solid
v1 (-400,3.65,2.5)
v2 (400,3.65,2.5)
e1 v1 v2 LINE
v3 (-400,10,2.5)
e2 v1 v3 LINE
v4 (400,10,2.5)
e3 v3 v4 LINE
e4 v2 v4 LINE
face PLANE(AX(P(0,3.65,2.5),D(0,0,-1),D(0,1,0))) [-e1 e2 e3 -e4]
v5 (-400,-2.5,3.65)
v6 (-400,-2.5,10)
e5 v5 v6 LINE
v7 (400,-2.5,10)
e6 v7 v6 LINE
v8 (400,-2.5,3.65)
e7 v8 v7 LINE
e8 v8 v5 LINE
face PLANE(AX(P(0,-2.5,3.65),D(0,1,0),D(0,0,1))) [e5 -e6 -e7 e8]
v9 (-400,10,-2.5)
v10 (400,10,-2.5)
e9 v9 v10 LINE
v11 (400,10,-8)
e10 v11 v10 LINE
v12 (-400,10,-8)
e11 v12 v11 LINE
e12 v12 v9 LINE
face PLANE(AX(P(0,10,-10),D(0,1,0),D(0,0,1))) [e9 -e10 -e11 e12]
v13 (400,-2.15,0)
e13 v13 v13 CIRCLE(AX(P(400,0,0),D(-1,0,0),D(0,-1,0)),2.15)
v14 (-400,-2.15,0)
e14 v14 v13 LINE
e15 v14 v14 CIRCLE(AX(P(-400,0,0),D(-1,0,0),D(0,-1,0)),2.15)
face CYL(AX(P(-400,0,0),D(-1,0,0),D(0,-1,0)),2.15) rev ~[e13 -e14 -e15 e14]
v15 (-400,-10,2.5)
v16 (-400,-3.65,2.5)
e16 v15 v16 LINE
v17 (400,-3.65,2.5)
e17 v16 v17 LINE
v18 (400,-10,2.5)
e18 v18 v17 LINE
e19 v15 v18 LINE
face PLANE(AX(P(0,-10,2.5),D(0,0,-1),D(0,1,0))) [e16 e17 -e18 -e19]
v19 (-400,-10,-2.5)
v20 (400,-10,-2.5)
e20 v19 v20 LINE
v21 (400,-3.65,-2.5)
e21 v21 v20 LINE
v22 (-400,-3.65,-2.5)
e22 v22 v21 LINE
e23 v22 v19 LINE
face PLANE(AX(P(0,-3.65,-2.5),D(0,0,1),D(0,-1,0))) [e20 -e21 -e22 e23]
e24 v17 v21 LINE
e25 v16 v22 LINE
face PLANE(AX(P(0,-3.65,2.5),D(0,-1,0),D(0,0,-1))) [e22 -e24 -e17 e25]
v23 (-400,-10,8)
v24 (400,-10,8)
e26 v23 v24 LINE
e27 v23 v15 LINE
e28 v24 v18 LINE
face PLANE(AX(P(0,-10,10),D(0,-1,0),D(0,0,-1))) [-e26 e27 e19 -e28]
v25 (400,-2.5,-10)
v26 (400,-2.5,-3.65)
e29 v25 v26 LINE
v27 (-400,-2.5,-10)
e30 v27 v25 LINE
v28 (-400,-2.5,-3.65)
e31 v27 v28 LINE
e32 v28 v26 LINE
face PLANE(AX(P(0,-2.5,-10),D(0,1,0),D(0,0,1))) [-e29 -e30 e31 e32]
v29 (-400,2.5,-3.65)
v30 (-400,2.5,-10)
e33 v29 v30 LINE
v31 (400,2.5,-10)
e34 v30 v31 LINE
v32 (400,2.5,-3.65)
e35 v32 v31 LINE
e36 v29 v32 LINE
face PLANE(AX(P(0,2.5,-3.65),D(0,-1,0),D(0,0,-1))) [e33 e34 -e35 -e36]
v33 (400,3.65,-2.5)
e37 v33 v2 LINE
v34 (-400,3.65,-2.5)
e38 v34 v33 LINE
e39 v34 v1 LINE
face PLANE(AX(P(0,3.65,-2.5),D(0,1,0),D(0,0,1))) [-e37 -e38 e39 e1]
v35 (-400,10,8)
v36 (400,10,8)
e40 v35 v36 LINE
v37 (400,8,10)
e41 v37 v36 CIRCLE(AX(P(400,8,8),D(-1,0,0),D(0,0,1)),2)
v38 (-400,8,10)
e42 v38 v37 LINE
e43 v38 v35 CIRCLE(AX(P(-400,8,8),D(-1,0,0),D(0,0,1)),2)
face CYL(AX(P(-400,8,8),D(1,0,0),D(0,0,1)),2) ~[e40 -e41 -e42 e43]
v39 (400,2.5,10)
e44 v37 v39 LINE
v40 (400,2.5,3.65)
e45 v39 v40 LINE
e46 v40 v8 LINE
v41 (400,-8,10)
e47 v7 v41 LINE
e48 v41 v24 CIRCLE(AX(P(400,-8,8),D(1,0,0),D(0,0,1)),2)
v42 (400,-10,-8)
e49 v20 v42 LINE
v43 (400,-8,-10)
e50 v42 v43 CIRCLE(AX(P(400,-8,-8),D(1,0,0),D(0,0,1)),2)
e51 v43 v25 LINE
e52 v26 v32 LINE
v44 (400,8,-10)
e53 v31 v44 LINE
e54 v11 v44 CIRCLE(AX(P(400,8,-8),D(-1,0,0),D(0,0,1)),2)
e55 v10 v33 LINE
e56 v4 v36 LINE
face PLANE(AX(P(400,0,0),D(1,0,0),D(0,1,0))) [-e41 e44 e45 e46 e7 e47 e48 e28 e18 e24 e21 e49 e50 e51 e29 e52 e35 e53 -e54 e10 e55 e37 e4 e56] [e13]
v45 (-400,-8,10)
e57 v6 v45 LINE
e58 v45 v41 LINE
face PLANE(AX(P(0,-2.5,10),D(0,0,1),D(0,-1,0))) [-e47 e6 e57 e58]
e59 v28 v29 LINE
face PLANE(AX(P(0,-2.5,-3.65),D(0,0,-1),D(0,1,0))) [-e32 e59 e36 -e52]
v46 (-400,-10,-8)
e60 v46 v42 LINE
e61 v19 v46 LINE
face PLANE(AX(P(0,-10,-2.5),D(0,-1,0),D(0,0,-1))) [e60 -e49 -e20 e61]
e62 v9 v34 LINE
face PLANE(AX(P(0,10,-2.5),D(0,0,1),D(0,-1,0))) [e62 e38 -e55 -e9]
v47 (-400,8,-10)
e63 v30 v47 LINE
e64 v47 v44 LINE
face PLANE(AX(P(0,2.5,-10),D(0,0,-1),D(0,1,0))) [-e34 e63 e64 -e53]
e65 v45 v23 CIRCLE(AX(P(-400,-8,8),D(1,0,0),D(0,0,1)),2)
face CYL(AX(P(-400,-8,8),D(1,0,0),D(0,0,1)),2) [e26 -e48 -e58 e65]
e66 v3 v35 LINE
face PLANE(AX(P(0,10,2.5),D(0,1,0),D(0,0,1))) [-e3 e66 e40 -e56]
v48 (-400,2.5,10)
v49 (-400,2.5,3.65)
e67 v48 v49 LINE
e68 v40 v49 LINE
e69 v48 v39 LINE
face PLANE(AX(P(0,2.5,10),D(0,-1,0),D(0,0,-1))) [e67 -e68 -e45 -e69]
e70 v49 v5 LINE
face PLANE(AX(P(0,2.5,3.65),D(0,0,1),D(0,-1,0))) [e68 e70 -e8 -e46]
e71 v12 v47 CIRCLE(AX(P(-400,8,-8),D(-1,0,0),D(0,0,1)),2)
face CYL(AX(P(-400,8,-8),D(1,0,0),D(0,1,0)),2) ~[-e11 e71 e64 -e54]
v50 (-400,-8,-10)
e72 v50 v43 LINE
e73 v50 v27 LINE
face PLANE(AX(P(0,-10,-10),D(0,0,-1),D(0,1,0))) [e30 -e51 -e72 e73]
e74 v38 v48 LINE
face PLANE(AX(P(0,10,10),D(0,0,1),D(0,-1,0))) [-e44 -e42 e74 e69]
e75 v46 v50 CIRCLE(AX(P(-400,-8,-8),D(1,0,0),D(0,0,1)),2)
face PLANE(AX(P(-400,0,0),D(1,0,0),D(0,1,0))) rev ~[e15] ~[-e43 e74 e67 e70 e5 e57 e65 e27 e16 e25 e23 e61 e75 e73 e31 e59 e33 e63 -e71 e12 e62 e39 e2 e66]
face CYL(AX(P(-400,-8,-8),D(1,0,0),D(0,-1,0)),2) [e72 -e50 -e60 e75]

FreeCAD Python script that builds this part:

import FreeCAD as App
import Part
import Sketcher
Q = App.Units.Quantity


def edges_at(feature, points):
    """Names of the edges that pass closest to the given points."""
    edges = feature.Shape.Edges
    near = lambda p: min(range(len(edges)), key=lambda i: edges[i].distToShape(Part.Vertex(*p))[0])
    return sorted({f"Edge{near(p) + 1}" for p in points})

doc = App.newDocument("Part")
body = doc.addObject("PartDesign::Body", "Body")

sketch1 = body.newObject("Sketcher::SketchObject", "Sketch")
sketch1.AttachmentSupport = (doc.getObject("YZ_Plane"), [""])
sketch1.MapMode = "FlatFace"
sketch1.addGeometry([
    Part.LineSegment(App.Vector(-2, 10, 0), App.Vector(-10, 10, 0)),
    Part.LineSegment(App.Vector(-10, 10, 0), App.Vector(-10, 2, 0)),
    Part.LineSegment(App.Vector(-10, 2, 0), App.Vector(-4, 2, 0)),
    Part.LineSegment(App.Vector(-4, 2, 0), App.Vector(-4, -2, 0)),
    Part.LineSegment(App.Vector(-4, -2, 0), App.Vector(-10, -2, 0)),
    Part.LineSegment(App.Vector(-10, -2, 0), App.Vector(-10, -10, 0)),
    Part.LineSegment(App.Vector(-10, -10, 0), App.Vector(-2, -10, 0)),
    Part.LineSegment(App.Vector(-2, -10, 0), App.Vector(-2, -4, 0)),
    Part.LineSegment(App.Vector(-2, -4, 0), App.Vector(2, -4, 0)),
    Part.LineSegment(App.Vector(2, -4, 0), App.Vector(2, -10, 0)),
    Part.LineSegment(App.Vector(2, -10, 0), App.Vector(10, -10, 0)),
    Part.LineSegment(App.Vector(10, -10, 0), App.Vector(10, -2, 0)),
    Part.LineSegment(App.Vector(10, -2, 0), App.Vector(4, -2, 0)),
    Part.LineSegment(App.Vector(4, -2, 0), App.Vector(4, 2, 0)),
    Part.LineSegment(App.Vector(4, 2, 0), App.Vector(10, 2, 0)),
    Part.LineSegment(App.Vector(10, 2, 0), App.Vector(10, 10, 0)),
    Part.LineSegment(App.Vector(10, 10, 0), App.Vector(2, 10, 0)),
    Part.LineSegment(App.Vector(2, 10, 0), App.Vector(2, 4, 0)),
    Part.LineSegment(App.Vector(2, 4, 0), App.Vector(-2, 4, 0)),
    Part.LineSegment(App.Vector(-2, 4, 0), App.Vector(-2, 10, 0)),
], False)
sketch1.addConstraint([
    Sketcher.Constraint("Coincident", 0, 2, 1, 1),
    Sketcher.Constraint("Coincident", 1, 2, 2, 1),
    Sketcher.Constraint("Coincident", 2, 2, 3, 1),
    Sketcher.Constraint("Coincident", 3, 2, 4, 1),
    Sketcher.Constraint("Coincident", 4, 2, 5, 1),
    Sketcher.Constraint("Coincident", 5, 2, 6, 1),
    Sketcher.Constraint("Coincident", 6, 2, 7, 1),
    Sketcher.Constraint("Coincident", 7, 2, 8, 1),
    Sketcher.Constraint("Coincident", 8, 2, 9, 1),
    Sketcher.Constraint("Coincident", 9, 2, 10, 1),
    Sketcher.Constraint("Coincident", 10, 2, 11, 1),
    Sketcher.Constraint("Coincident", 11, 2, 12, 1),
    Sketcher.Constraint("Coincident", 12, 2, 13, 1),
    Sketcher.Constraint("Coincident", 13, 2, 14, 1),
    Sketcher.Constraint("Coincident", 14, 2, 15, 1),
    Sketcher.Constraint("Coincident", 15, 2, 16, 1),
    Sketcher.Constraint("Coincident", 16, 2, 17, 1),
    Sketcher.Constraint("Coincident", 17, 2, 18, 1),
    Sketcher.Constraint("Coincident", 18, 2, 19, 1),
    Sketcher.Constraint("Coincident", 19, 2, 0, 1),
    Sketcher.Constraint("Horizontal", 0),
    Sketcher.Constraint("Vertical", 1),
    Sketcher.Constraint("Horizontal", 2),
    Sketcher.Constraint("Vertical", 3),
    Sketcher.Constraint("Horizontal", 4),
    Sketcher.Constraint("Vertical", 5),
    Sketcher.Constraint("Horizontal", 6),
    Sketcher.Constraint("Vertical", 7),
    Sketcher.Constraint("Horizontal", 8),
    Sketcher.Constraint("Vertical", 9),
    Sketcher.Constraint("Horizontal", 10),
    Sketcher.Constraint("Vertical", 11),
    Sketcher.Constraint("Horizontal", 12),
    Sketcher.Constraint("Vertical", 13),
    Sketcher.Constraint("Horizontal", 14),
    Sketcher.Constraint("Vertical", 15),
    Sketcher.Constraint("Horizontal", 16),
    Sketcher.Constraint("Vertical", 17),
    Sketcher.Constraint("Horizontal", 18),
    Sketcher.Constraint("Vertical", 19),
    Sketcher.Constraint("Symmetric", 0, 2, 10, 2, -1, 1),
    Sketcher.Constraint("Symmetric", 2, 2, 12, 2, -1, 1),
    Sketcher.Constraint("Symmetric", 4, 2, 14, 2, -1, 1),
    Sketcher.Constraint("Symmetric", 6, 2, 16, 2, -1, 1),
    Sketcher.Constraint("Symmetric", 8, 2, 18, 2, -1, 1),
    Sketcher.Constraint("Symmetric", 6, 2, 9, 2, -2),
    Sketcher.Constraint("Symmetric", 4, 2, 11, 2, -2),
    Sketcher.Constraint("Equal", 16, 1),
    Sketcher.Constraint("Equal", 18, 3),
    Sketcher.Constraint("Equal", 14, 7),
    Sketcher.Constraint("DistanceX", 8, 1, 8, 2, Q("5 mm")),
    Sketcher.Constraint("DistanceX", 0, 2, 0, 1, Q("7.5 mm")),
    Sketcher.Constraint("DistanceX", 2, 1, 2, 2, Q("6.35 mm")),
])
pad1 = body.newObject("PartDesign::Pad", "Pad")
pad1.Profile = sketch1
pad1.Length = 800
pad1.Midplane = True

sketch2 = body.newObject("Sketcher::SketchObject", "Sketch001")
sketch2.AttachmentSupport = (doc.getObject("YZ_Plane"), [""])
sketch2.MapMode = "FlatFace"
sketch2.AttachmentOffset = App.Placement(App.Vector(0, 0, -400), App.Rotation())
sketch2.addGeometry(Part.Circle(App.Vector(0, 0, 0), App.Vector(0, 0, 1), 2.1), False)
sketch2.addConstraint([
    Sketcher.Constraint("Coincident", 0, 3, -1, 1),
    Sketcher.Constraint("Diameter", 0, Q("4.3 mm")),
])
pocket1 = body.newObject("PartDesign::Pocket", "Pocket")
pocket1.Profile = sketch2
pocket1.Length = 800
pocket1.Reversed = True
doc.recompute()

fillet = body.newObject("PartDesign::Fillet", "Fillet")
fillet.Base = (pocket1, edges_at(pocket1, [
    (0, 10, -10),
    (0, -10, -10),
    (0, -10, 10),
    (0, 10, 10),
]))
fillet.Radius = 2

doc.recompute()
